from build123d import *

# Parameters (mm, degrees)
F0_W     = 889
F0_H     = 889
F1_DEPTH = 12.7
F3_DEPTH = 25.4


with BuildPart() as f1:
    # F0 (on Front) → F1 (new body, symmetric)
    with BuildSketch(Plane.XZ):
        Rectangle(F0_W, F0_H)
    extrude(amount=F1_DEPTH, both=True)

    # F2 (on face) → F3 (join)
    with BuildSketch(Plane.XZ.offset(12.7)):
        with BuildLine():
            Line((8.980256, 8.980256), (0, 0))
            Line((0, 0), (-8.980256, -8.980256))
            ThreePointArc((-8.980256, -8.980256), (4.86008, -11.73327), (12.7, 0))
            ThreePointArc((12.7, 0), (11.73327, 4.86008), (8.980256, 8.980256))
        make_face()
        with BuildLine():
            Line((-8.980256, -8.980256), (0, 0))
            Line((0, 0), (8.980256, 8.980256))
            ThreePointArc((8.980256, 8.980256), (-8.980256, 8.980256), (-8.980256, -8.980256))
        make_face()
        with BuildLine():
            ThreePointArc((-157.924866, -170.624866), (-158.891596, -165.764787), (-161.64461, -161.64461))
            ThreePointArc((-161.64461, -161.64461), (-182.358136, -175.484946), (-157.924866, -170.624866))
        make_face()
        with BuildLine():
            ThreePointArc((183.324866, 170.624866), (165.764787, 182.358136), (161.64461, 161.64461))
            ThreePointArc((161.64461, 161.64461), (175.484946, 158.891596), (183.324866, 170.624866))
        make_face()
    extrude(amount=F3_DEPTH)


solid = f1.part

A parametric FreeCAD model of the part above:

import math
import FreeCAD as App
import Part
import Sketcher

V = App.Vector
Q = App.Units.Quantity

doc = App.newDocument("Part")
body = doc.addObject("PartDesign::Body", "Body")

# Sketch on XZ plane
sketch1 = doc.addObject("Sketcher::SketchObject", "Sketch")
body.addObject(sketch1)
sketch1.AttachmentSupport = (doc.XZ_Plane, [""])
sketch1.MapMode = "FlatFace"
sketch1.addGeometry([
    Part.LineSegment(V(-444.5, 444.5, 0), V(-444.5, -444.5, 0)),
    Part.LineSegment(V(-444.5, -444.5, 0), V(444.5, -444.5, 0)),
    Part.LineSegment(V(444.5, -444.5, 0), V(444.5, 444.5, 0)),
    Part.LineSegment(V(444.5, 444.5, 0), V(-444.5, 444.5, 0)),
], False)
sketch1.addConstraint([
    Sketcher.Constraint("Coincident", 0, 2, 1, 1),
    Sketcher.Constraint("Coincident", 1, 2, 2, 1),
    Sketcher.Constraint("Coincident", 2, 2, 3, 1),
    Sketcher.Constraint("Coincident", 3, 2, 0, 1),
    Sketcher.Constraint("Vertical", 0),
    Sketcher.Constraint("Horizontal", 1),
    Sketcher.Constraint("Vertical", 2),
    Sketcher.Constraint("Horizontal", 3),
    Sketcher.Constraint("Symmetric", 0, 2, 2, 2, -1, 1),
    Sketcher.Constraint("Equal", 3, 0),
    Sketcher.Constraint("DistanceX", 1, 1, 1, 2, Q("35 in")),
])
pad1 = doc.addObject("PartDesign::Pad", "Pad")
body.addObject(pad1)
pad1.Profile = sketch1
pad1.Length = Q("1 in")
pad1.Midplane = True

# Sketch on XZ plane
sketch2 = doc.addObject("Sketcher::SketchObject", "Sketch001")
body.addObject(sketch2)
sketch2.AttachmentSupport = (doc.XZ_Plane, [""])
sketch2.MapMode = "FlatFace"
sketch2.AttachmentOffset = App.Placement(V(0, 0, 0.5 * 25.4), App.Rotation())
sketch2.addGeometry([
    Part.ArcOfCircle(Part.Circle(V(0, 0, 0), V(0, 0, 1), 12.7), math.radians(-135.000001), math.radians(0.000001)),  # 0
    Part.ArcOfCircle(Part.Circle(V(0.000002, 0.000001, 0), V(0, 0, 1), 12.699998), math.radians(-0.000003), math.radians(45.000005)),  # 1
    Part.ArcOfCircle(Part.Circle(V(0, 0, 0), V(0, 0, 1), 12.7), math.radians(45), math.radians(225)),  # 2
    Part.ArcOfCircle(Part.Circle(V(-170.624868, -170.624867, 0), V(0, 0, 1), 12.700002), math.radians(0.000005), math.radians(44.999996)),  # 3
    Part.ArcOfCircle(Part.Circle(V(-170.624866, -170.624866, 0), V(0, 0, 1), 12.7), math.radians(45.000001), math.radians(360.000001)),  # 4
    Part.ArcOfCircle(Part.Circle(V(170.624866, 170.624866, 0), V(0, 0, 1), 12.7), math.radians(0), math.radians(224.999999)),  # 5
    Part.ArcOfCircle(Part.Circle(V(170.624866, 170.624866, 0), V(0, 0, 1), 12.7), math.radians(-135.000001), math.radians(0.000001)),  # 6
], False)
sketch2.addConstraint([
    Sketcher.Constraint("Tangent", 0, 2, 1, 1),
    Sketcher.Constraint("Tangent", 1, 2, 2, 1),
    Sketcher.Constraint("Tangent", 2, 2, 0, 1),
    Sketcher.Constraint("Tangent", 3, 1, 4, 2),
    Sketcher.Constraint("Coincident", 4, 1, 3, 2),
    Sketcher.Constraint("Tangent", 5, 1, 6, 2),
    Sketcher.Constraint("Coincident", 6, 1, 5, 2),
    Sketcher.Constraint("Coincident", 0, 3, -1, 1),
    Sketcher.Constraint("Equal", 2, 4),
    Sketcher.Constraint("Equal", 4, 5),
    Sketcher.Constraint("Symmetric", 3, 3, 5, 3, -1, 1),
    Sketcher.Constraint("PointOnObject", 0, 2, -1),
    Sketcher.Constraint("Horizontal", 4, 3, 3, 1),
    Sketcher.Constraint("Horizontal", 6, 3, 5, 1),
    Sketcher.Constraint("Radius", 0, Q("0.5 in")),
    Sketcher.Constraint("DistanceX", 3, 3, -1, 1, Q("170.624868 mm")),
    Sketcher.Constraint("DistanceX", 4, 1, -1, 1, Q("161.64461 mm")),
    Sketcher.Constraint("DistanceY", 4, 1, -1, 1, Q("161.64461 mm")),
    Sketcher.Constraint("DistanceX", -1, 1, 6, 1, Q("161.64461 mm")),
    Sketcher.Constraint("DistanceX", 1, 2, 6, 3, Q("161.64461 mm")),
    Sketcher.Constraint("DistanceX", 2, 2, 1, 3, Q("8.980258 mm")),
])
pad2 = doc.addObject("PartDesign::Pad", "Pad001")
body.addObject(pad2)
pad2.Profile = sketch2
pad2.Length = Q("1 in")

doc.recompute()
